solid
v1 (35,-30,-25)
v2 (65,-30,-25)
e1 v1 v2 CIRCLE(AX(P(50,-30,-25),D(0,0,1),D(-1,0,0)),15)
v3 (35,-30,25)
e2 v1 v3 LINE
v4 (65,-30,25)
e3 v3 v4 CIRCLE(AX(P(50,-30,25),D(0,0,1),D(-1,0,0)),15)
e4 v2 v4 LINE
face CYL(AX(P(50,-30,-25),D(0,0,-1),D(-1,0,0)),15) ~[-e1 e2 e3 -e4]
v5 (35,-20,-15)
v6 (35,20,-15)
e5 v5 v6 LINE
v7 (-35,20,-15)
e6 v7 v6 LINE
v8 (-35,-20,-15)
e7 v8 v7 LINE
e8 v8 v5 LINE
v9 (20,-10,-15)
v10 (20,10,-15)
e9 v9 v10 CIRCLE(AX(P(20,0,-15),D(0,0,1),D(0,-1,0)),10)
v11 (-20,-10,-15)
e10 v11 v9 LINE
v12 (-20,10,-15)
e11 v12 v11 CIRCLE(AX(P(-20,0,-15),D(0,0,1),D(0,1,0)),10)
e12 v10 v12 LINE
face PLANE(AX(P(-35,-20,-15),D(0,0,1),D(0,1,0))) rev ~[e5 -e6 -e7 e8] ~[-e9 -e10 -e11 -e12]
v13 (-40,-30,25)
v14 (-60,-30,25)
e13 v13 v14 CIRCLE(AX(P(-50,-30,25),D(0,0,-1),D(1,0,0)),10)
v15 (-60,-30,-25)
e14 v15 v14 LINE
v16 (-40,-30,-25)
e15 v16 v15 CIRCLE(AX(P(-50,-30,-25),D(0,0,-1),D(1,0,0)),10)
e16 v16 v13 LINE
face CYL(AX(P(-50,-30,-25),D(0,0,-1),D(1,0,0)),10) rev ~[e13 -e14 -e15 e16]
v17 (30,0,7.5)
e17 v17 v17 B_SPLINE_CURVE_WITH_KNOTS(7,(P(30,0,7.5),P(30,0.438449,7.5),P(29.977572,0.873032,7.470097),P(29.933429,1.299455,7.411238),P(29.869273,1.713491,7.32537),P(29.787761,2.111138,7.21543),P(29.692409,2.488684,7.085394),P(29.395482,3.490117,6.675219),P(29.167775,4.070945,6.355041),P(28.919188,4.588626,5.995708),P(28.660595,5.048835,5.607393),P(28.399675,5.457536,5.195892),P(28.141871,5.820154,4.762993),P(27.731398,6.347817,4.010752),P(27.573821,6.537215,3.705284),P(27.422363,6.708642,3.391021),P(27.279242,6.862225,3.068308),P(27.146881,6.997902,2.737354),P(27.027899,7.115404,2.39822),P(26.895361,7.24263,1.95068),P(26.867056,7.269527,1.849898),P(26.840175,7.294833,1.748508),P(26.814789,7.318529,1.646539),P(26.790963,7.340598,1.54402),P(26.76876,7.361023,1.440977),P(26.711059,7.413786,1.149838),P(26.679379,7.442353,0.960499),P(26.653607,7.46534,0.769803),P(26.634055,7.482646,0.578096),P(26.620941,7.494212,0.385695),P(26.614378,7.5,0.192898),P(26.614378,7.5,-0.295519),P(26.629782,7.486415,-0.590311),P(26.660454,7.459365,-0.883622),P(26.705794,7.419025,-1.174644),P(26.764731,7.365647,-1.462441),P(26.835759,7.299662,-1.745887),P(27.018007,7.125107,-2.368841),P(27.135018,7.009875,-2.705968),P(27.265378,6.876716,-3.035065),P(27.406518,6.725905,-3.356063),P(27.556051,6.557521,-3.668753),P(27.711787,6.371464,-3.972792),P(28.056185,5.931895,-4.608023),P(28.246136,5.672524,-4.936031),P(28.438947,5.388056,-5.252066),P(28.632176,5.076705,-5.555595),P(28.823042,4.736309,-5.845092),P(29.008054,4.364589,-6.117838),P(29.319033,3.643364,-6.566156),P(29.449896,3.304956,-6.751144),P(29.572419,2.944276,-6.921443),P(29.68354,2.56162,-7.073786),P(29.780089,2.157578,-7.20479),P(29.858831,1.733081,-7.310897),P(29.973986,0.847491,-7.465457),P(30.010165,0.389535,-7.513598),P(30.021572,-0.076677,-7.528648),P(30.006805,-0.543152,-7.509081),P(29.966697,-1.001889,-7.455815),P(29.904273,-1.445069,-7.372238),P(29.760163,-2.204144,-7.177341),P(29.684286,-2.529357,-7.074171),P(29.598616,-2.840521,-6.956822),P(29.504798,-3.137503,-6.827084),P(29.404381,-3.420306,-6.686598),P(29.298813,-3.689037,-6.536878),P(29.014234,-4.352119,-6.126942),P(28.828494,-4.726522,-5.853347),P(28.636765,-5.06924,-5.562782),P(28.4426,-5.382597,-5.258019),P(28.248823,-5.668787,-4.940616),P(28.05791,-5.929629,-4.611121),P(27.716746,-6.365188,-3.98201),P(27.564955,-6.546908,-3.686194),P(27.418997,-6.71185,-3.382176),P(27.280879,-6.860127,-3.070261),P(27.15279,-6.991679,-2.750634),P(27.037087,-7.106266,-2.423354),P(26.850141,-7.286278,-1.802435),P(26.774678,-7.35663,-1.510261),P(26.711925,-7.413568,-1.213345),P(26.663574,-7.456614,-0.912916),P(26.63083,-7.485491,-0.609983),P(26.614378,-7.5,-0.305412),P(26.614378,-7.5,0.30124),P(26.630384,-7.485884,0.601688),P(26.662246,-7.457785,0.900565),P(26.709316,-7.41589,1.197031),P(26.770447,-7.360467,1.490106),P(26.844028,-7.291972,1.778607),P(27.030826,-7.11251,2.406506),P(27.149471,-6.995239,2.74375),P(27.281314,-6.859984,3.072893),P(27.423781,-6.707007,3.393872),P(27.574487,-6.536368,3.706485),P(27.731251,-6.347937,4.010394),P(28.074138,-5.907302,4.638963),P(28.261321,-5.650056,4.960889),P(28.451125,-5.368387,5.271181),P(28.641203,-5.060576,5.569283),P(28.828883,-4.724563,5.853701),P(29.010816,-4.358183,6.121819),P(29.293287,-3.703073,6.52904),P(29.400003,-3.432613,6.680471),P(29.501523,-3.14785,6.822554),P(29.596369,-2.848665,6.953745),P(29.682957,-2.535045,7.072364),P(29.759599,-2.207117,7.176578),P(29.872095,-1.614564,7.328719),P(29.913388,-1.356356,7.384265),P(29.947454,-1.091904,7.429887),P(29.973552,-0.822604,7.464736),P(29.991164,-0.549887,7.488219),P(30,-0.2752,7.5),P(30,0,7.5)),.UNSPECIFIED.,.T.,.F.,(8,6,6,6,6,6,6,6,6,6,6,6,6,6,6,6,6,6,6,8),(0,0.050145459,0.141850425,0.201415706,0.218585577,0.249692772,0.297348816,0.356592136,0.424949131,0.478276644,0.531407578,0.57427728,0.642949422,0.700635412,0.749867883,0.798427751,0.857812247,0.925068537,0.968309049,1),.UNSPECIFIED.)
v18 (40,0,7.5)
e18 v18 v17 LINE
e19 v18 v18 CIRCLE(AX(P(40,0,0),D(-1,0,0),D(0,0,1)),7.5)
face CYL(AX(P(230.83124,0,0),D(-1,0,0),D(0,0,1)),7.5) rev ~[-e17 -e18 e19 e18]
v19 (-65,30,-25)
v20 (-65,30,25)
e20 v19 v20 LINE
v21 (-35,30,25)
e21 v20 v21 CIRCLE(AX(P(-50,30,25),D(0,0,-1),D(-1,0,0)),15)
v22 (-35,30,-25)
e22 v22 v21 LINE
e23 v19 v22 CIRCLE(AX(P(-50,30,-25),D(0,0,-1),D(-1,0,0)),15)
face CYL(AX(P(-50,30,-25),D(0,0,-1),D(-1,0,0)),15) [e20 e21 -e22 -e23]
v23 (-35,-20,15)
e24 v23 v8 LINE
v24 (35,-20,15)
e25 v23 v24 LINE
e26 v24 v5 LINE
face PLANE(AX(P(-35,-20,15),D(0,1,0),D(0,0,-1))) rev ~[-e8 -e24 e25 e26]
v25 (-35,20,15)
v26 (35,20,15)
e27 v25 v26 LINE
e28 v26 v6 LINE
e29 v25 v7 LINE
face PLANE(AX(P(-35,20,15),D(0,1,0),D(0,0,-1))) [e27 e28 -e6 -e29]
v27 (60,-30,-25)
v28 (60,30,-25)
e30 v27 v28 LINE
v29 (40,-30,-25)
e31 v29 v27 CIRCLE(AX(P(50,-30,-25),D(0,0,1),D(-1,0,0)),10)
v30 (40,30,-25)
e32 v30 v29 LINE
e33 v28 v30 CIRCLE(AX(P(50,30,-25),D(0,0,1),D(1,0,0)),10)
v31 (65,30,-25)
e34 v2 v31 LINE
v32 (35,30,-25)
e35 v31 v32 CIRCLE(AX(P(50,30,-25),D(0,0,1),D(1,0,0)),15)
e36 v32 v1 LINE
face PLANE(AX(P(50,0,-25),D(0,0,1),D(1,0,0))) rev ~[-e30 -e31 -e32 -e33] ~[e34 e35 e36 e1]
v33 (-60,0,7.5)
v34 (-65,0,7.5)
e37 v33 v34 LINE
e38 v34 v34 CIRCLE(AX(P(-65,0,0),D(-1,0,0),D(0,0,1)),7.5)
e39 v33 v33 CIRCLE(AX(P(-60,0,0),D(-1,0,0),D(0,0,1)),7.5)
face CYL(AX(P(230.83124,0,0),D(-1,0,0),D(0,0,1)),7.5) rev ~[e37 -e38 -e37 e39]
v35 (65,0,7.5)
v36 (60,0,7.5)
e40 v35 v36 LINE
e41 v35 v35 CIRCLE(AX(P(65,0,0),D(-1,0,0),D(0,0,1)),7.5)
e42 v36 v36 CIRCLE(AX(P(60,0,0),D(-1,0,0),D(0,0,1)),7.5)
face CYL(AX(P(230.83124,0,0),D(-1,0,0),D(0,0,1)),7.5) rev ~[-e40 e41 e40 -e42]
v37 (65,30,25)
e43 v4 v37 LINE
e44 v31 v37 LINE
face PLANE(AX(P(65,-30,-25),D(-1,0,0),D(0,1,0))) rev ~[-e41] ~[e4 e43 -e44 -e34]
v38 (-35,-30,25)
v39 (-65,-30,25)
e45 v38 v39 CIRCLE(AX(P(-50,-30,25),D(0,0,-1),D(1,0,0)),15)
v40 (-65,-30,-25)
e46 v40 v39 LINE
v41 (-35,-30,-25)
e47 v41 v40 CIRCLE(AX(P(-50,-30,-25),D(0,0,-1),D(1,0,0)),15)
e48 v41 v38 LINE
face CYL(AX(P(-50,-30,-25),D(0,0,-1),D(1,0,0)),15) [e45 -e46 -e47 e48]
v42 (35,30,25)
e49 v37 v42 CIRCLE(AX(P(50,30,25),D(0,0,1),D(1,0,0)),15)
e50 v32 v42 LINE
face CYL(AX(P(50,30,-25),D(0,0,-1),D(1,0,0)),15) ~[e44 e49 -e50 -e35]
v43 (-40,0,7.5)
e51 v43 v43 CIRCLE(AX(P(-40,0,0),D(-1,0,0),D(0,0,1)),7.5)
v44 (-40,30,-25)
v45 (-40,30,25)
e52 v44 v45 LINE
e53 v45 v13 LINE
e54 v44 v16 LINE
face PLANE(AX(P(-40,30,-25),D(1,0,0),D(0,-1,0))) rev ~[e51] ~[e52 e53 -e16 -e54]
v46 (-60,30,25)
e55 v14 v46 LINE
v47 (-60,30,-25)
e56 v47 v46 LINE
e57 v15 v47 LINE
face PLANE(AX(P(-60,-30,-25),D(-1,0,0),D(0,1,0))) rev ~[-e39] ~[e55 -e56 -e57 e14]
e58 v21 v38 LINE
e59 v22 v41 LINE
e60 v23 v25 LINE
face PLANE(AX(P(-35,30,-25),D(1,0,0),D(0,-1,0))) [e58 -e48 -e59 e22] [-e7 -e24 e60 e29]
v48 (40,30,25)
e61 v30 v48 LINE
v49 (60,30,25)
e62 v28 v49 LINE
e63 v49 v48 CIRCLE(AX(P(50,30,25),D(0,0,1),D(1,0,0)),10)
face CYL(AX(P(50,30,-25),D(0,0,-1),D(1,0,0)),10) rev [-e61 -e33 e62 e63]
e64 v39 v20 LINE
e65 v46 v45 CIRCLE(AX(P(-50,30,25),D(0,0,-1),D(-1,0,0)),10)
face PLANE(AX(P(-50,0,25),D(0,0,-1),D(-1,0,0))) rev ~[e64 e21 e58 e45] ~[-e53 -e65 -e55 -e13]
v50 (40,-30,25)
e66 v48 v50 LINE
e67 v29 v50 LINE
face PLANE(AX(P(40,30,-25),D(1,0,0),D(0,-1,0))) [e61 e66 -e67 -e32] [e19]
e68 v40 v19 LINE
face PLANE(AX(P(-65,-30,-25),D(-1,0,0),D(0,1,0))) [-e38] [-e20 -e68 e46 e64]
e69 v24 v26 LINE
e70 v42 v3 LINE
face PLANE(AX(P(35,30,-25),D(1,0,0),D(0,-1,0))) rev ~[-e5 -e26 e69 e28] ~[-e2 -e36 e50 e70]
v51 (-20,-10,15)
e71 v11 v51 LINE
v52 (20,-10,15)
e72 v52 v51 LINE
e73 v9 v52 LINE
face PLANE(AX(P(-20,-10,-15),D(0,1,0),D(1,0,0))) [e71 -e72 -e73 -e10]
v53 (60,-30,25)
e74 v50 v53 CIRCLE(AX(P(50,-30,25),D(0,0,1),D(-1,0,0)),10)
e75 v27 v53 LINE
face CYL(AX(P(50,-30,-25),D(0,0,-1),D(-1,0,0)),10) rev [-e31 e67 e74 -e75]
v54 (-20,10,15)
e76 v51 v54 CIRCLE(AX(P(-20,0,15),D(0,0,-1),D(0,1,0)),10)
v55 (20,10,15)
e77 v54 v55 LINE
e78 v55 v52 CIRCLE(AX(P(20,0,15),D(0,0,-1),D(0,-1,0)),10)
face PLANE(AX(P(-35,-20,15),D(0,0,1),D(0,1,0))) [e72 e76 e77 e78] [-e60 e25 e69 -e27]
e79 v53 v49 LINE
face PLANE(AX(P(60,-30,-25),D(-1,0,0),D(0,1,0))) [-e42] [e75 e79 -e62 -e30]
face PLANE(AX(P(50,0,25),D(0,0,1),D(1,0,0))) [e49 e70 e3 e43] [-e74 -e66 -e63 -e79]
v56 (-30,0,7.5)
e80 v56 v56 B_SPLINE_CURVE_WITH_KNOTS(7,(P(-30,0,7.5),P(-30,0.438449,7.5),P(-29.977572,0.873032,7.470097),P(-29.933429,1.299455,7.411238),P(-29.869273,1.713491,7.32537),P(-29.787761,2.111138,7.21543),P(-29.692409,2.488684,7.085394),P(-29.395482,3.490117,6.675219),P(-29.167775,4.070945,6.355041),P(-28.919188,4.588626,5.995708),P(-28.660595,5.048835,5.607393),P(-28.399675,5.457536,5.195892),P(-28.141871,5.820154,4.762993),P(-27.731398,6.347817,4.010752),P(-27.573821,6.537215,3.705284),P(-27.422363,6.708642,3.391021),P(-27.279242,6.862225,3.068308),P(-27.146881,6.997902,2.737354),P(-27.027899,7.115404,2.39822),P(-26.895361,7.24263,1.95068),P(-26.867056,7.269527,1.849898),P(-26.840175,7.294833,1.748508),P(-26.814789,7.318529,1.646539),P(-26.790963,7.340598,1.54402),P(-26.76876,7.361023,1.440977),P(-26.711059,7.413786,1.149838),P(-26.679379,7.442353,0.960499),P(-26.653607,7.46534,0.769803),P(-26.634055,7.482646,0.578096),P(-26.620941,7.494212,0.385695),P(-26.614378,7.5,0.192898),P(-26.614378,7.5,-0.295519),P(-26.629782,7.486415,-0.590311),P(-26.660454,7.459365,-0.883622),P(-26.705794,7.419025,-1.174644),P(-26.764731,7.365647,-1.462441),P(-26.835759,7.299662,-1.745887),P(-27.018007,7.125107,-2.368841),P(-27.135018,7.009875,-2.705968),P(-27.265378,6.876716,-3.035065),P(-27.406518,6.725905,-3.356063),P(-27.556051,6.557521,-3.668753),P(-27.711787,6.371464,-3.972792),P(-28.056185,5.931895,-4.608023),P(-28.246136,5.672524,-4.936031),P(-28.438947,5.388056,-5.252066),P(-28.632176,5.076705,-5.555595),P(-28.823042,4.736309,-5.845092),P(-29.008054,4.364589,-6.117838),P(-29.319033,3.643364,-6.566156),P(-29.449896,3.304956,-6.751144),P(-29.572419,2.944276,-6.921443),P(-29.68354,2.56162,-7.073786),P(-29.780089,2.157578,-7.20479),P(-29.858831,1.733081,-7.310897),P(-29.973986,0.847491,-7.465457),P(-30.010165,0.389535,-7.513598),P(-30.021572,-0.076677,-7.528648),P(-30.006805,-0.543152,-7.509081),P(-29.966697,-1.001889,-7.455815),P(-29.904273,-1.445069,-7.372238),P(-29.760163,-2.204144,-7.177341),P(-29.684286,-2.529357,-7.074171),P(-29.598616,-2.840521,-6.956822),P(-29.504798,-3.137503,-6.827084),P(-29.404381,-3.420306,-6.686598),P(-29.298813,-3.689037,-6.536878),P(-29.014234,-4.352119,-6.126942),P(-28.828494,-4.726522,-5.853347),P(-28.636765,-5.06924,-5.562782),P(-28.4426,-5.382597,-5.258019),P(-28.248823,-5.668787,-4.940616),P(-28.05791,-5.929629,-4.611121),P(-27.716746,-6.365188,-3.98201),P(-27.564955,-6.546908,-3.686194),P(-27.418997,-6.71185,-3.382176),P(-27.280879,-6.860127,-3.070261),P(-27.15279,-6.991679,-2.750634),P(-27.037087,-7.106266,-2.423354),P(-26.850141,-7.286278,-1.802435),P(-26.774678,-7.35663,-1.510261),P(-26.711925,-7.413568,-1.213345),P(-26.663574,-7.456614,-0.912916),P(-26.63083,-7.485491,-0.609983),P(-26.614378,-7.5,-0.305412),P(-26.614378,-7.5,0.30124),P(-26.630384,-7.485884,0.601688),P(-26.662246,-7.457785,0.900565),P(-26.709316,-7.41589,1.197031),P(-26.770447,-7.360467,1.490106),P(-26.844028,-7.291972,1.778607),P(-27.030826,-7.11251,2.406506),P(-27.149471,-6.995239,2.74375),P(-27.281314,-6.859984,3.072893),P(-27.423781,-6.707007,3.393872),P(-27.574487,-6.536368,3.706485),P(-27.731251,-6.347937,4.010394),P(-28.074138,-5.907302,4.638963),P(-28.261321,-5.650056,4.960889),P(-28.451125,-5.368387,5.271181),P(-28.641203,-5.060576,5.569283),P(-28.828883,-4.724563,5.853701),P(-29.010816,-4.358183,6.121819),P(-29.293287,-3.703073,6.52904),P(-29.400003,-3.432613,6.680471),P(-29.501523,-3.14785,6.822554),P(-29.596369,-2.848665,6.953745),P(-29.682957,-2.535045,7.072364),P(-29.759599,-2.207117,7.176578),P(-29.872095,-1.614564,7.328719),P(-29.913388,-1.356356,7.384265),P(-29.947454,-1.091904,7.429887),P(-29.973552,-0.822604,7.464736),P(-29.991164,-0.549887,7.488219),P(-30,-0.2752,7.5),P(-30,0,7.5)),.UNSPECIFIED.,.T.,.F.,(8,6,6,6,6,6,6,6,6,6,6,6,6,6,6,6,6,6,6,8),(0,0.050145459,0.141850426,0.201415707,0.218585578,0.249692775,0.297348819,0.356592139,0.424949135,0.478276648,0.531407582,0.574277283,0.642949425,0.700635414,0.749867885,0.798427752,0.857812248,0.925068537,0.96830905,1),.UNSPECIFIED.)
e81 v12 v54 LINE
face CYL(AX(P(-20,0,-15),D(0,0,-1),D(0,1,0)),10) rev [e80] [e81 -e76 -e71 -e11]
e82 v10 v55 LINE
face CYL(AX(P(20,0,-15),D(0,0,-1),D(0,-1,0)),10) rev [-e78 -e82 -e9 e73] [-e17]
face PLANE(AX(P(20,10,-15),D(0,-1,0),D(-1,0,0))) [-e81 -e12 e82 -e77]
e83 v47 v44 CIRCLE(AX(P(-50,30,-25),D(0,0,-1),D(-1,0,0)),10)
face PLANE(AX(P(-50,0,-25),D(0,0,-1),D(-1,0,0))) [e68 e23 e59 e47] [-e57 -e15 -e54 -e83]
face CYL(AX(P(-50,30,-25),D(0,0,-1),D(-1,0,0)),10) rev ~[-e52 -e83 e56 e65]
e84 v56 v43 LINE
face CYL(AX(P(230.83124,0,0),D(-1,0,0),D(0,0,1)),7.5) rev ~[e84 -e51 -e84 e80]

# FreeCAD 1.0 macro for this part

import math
import FreeCAD as App
import Part
import Sketcher

V = App.Vector
Q = App.Units.Quantity

doc = App.newDocument("Part")
body = doc.addObject("PartDesign::Body", "Body")

# Sketch on XY plane
sketch1 = body.newObject("Sketcher::SketchObject", "Sketch")
sketch1.AttachmentSupport = (doc.getObject("XY_Plane"), [""])
sketch1.MapMode = "FlatFace"
sketch1.addGeometry(Part.LineSegment(V(-35, -30, 0), V(-35, 30, 0)), False)
sketch1.addGeometry(Part.ArcOfCircle(Part.Circle(V(-50, 30, 0), V(0, 0, 1), 15), math.radians(0), math.radians(180)), False)
sketch1.addGeometry(Part.LineSegment(V(-65, 30, 0), V(-65, -30, 0)), False)
sketch1.addGeometry(Part.ArcOfCircle(Part.Circle(V(-50, -30, 0), V(0, 0, 1), 15), math.radians(180), math.radians(360)), False)
sketch1.addGeometry(Part.LineSegment(V(-40, 30, 0), V(-40, -30, 0)), False)
sketch1.addGeometry(Part.ArcOfCircle(Part.Circle(V(-50, -30, 0), V(0, 0, 1), 10), math.radians(180), math.radians(360)), False)
sketch1.addGeometry(Part.LineSegment(V(-60, -30, 0), V(-60, 30, 0)), False)
sketch1.addGeometry(Part.ArcOfCircle(Part.Circle(V(-50, 30, 0), V(0, 0, 1), 10), math.radians(0), math.radians(180)), False)
sketch1.addConstraint(Sketcher.Constraint("Tangent", 0, 2, 1, 1))
sketch1.addConstraint(Sketcher.Constraint("Tangent", 1, 2, 2, 1))
sketch1.addConstraint(Sketcher.Constraint("Tangent", 2, 2, 3, 1))
sketch1.addConstraint(Sketcher.Constraint("Tangent", 3, 2, 0, 1))
sketch1.addConstraint(Sketcher.Constraint("Tangent", 4, 2, 5, 2))
sketch1.addConstraint(Sketcher.Constraint("Tangent", 5, 1, 6, 1))
sketch1.addConstraint(Sketcher.Constraint("Tangent", 6, 2, 7, 2))
sketch1.addConstraint(Sketcher.Constraint("Tangent", 7, 1, 4, 1))
sketch1.addConstraint(Sketcher.Constraint("Vertical", 0))
sketch1.addConstraint(Sketcher.Constraint("Vertical", 2))
sketch1.addConstraint(Sketcher.Constraint("Vertical", 4))
sketch1.addConstraint(Sketcher.Constraint("Vertical", 6))
sketch1.addConstraint(Sketcher.Constraint("Coincident", 5, 3, 3, 3))
sketch1.addConstraint(Sketcher.Constraint("Horizontal", 7, 3, 0, 2))
sketch1.addConstraint(Sketcher.Constraint("Radius", 1, Q("15 mm")))
sketch1.addConstraint(Sketcher.Constraint("Radius", 5, Q("10 mm")))
sketch1.addConstraint(Sketcher.Constraint("DistanceY", 0, 1, 0, 2, Q("60 mm")))
sketch1.addConstraint(Sketcher.Constraint("DistanceX", 1, 3, -1, 1, Q("50 mm")))
sketch1.addConstraint(Sketcher.Constraint("DistanceY", -1, 1, 1, 3, Q("30 mm")))
pad1 = body.newObject("PartDesign::Pad", "Pad")
pad1.Profile = sketch1
pad1.Type = "TwoLengths"
pad1.Length = 25
pad1.Length2 = 25
body2 = doc.addObject("PartDesign::Body", "Body001")
body2.AllowCompound = True

# Sketch on XY plane
sketch2 = body2.newObject("Sketcher::SketchObject", "Sketch001")
sketch2.AttachmentSupport = (doc.getObject("XY_Plane001"), [""])
sketch2.MapMode = "FlatFace"
sketch2.addGeometry(Part.LineSegment(V(35, 30, 0), V(35, -30, 0)), False)
sketch2.addGeometry(Part.ArcOfCircle(Part.Circle(V(50, -30, 0), V(0, 0, 1), 15), math.radians(180), math.radians(360)), False)
sketch2.addGeometry(Part.LineSegment(V(65, -30, 0), V(65, 30, 0)), False)
sketch2.addGeometry(Part.ArcOfCircle(Part.Circle(V(50, 30, 0), V(0, 0, 1), 15), math.radians(0), math.radians(180)), False)
sketch2.addGeometry(Part.LineSegment(V(40, -30, 0), V(40, 30, 0)), False)
sketch2.addGeometry(Part.ArcOfCircle(Part.Circle(V(50, 30, 0), V(0, 0, 1), 10), math.radians(0), math.radians(180)), False)
sketch2.addGeometry(Part.LineSegment(V(60, 30, 0), V(60, -30, 0)), False)
sketch2.addGeometry(Part.ArcOfCircle(Part.Circle(V(50, -30, 0), V(0, 0, 1), 10), math.radians(180), math.radians(360)), False)
sketch2.addConstraint(Sketcher.Constraint("Tangent", 0, 2, 1, 1))
sketch2.addConstraint(Sketcher.Constraint("Tangent", 1, 2, 2, 1))
sketch2.addConstraint(Sketcher.Constraint("Tangent", 2, 2, 3, 1))
sketch2.addConstraint(Sketcher.Constraint("Tangent", 3, 2, 0, 1))
sketch2.addConstraint(Sketcher.Constraint("Tangent", 4, 2, 5, 2))
sketch2.addConstraint(Sketcher.Constraint("Tangent", 5, 1, 6, 1))
sketch2.addConstraint(Sketcher.Constraint("Tangent", 6, 2, 7, 2))
sketch2.addConstraint(Sketcher.Constraint("Tangent", 7, 1, 4, 1))
sketch2.addConstraint(Sketcher.Constraint("Vertical", 0))
sketch2.addConstraint(Sketcher.Constraint("Vertical", 2))
sketch2.addConstraint(Sketcher.Constraint("Vertical", 4))
sketch2.addConstraint(Sketcher.Constraint("Vertical", 6))
sketch2.addConstraint(Sketcher.Constraint("Coincident", 5, 3, 3, 3))
sketch2.addConstraint(Sketcher.Constraint("Horizontal", 7, 3, 0, 2))
sketch2.addConstraint(Sketcher.Constraint("Radius", 1, Q("15 mm")))
sketch2.addConstraint(Sketcher.Constraint("Radius", 5, Q("10 mm")))
sketch2.addConstraint(Sketcher.Constraint("DistanceY", 0, 2, 0, 1, Q("60 mm")))
sketch2.addConstraint(Sketcher.Constraint("DistanceX", -1, 1, 1, 3, Q("50 mm")))
sketch2.addConstraint(Sketcher.Constraint("DistanceY", 1, 3, -1, 1, Q("30 mm")))
pad2 = body2.newObject("PartDesign::Pad", "Pad001")
pad2.Profile = sketch2
pad2.Type = "TwoLengths"
pad2.Length = 25
pad2.Length2 = 25
doc.recompute()

boolean = body2.newObject("PartDesign::Boolean", "Boolean")
boolean.Type = "Fuse"
boolean.addObjects([body])

# Sketch on YZ plane
sketch3 = body2.newObject("Sketcher::SketchObject", "Sketch002")
sketch3.AttachmentSupport = (doc.getObject("YZ_Plane001"), [""])
sketch3.MapMode = "FlatFace"
sketch3.AttachmentOffset = App.Placement(V(0, 0, -35), App.Rotation())
sketch3.addGeometry(Part.LineSegment(V(20, 15, 0), V(-20, 15, 0)), False)
sketch3.addGeometry(Part.LineSegment(V(-20, 15, 0), V(-20, -15, 0)), False)
sketch3.addGeometry(Part.LineSegment(V(-20, -15, 0), V(20, -15, 0)), False)
sketch3.addGeometry(Part.LineSegment(V(20, -15, 0), V(20, 15, 0)), False)
sketch3.addConstraint(Sketcher.Constraint("Coincident", 0, 2, 1, 1))
sketch3.addConstraint(Sketcher.Constraint("Coincident", 1, 2, 2, 1))
sketch3.addConstraint(Sketcher.Constraint("Coincident", 2, 2, 3, 1))
sketch3.addConstraint(Sketcher.Constraint("Coincident", 3, 2, 0, 1))
sketch3.addConstraint(Sketcher.Constraint("Horizontal", 0))
sketch3.addConstraint(Sketcher.Constraint("Vertical", 1))
sketch3.addConstraint(Sketcher.Constraint("Horizontal", 2))
sketch3.addConstraint(Sketcher.Constraint("Vertical", 3))
sketch3.addConstraint(Sketcher.Constraint("Symmetric", 0, 2, 2, 2, -1, 1))
sketch3.addConstraint(Sketcher.Constraint("DistanceX", 0, 2, 0, 1, Q("40 mm")))
sketch3.addConstraint(Sketcher.Constraint("DistanceY", 1, 2, 1, 1, Q("30 mm")))
pad3 = body2.newObject("PartDesign::Pad", "Pad002")
pad3.Profile = sketch3
pad3.Type = "UpToFirst"

# Sketch on XY plane
sketch4 = body2.newObject("Sketcher::SketchObject", "Sketch003")
sketch4.AttachmentSupport = (doc.getObject("XY_Plane001"), [""])
sketch4.MapMode = "FlatFace"
sketch4.AttachmentOffset = App.Placement(V(0, 0, -15), App.Rotation())
sketch4.addGeometry(Part.LineSegment(V(-20, 10, 0), V(20, 10, 0)), False)
sketch4.addGeometry(Part.ArcOfCircle(Part.Circle(V(20, 0, 0), V(0, 0, 1), 10), math.radians(-90), math.radians(90)), False)
sketch4.addGeometry(Part.LineSegment(V(20, -10, 0), V(-20, -10, 0)), False)
sketch4.addGeometry(Part.ArcOfCircle(Part.Circle(V(-20, 0, 0), V(0, 0, 1), 10), math.radians(90), math.radians(270)), False)
sketch4.addConstraint(Sketcher.Constraint("Tangent", 0, 2, 1, 2))
sketch4.addConstraint(Sketcher.Constraint("Tangent", 1, 1, 2, 1))
sketch4.addConstraint(Sketcher.Constraint("Tangent", 2, 2, 3, 2))
sketch4.addConstraint(Sketcher.Constraint("Tangent", 3, 1, 0, 1))
sketch4.addConstraint(Sketcher.Constraint("Horizontal", 0))
sketch4.addConstraint(Sketcher.Constraint("Horizontal", 2))
sketch4.addConstraint(Sketcher.Constraint("Symmetric", 1, 3, 3, 3, -1, 1))
sketch4.addConstraint(Sketcher.Constraint("Radius", 1, Q("10 mm")))
sketch4.addConstraint(Sketcher.Constraint("DistanceX", 0, 1, 0, 2, Q("40 mm")))
pocket1 = body2.newObject("PartDesign::Pocket", "Pocket")
pocket1.Profile = sketch4
pocket1.Type = "ThroughAll"
pocket1.Reversed = True

# Sketch on YZ plane
sketch5 = body2.newObject("Sketcher::SketchObject", "Sketch004")
sketch5.AttachmentSupport = (doc.getObject("YZ_Plane001"), [""])
sketch5.MapMode = "FlatFace"
sketch5.AttachmentOffset = App.Placement(V(0, 0, 65), App.Rotation())
sketch5.addGeometry(Part.Circle(V(0, 0, 0), V(0, 0, 1), 8), False)
sketch5.addConstraint(Sketcher.Constraint("Coincident", 0, 3, -1, 1))
sketch5.addConstraint(Sketcher.Constraint("Diameter", 0, Q("15 mm")))
doc.recompute()
hole = body2.newObject("PartDesign::Hole", "Hole")
hole.Profile = sketch5
hole.ThreadType = "None"
hole.Diameter = 15
hole.DepthType = "ThroughAll"

doc.recompute()
